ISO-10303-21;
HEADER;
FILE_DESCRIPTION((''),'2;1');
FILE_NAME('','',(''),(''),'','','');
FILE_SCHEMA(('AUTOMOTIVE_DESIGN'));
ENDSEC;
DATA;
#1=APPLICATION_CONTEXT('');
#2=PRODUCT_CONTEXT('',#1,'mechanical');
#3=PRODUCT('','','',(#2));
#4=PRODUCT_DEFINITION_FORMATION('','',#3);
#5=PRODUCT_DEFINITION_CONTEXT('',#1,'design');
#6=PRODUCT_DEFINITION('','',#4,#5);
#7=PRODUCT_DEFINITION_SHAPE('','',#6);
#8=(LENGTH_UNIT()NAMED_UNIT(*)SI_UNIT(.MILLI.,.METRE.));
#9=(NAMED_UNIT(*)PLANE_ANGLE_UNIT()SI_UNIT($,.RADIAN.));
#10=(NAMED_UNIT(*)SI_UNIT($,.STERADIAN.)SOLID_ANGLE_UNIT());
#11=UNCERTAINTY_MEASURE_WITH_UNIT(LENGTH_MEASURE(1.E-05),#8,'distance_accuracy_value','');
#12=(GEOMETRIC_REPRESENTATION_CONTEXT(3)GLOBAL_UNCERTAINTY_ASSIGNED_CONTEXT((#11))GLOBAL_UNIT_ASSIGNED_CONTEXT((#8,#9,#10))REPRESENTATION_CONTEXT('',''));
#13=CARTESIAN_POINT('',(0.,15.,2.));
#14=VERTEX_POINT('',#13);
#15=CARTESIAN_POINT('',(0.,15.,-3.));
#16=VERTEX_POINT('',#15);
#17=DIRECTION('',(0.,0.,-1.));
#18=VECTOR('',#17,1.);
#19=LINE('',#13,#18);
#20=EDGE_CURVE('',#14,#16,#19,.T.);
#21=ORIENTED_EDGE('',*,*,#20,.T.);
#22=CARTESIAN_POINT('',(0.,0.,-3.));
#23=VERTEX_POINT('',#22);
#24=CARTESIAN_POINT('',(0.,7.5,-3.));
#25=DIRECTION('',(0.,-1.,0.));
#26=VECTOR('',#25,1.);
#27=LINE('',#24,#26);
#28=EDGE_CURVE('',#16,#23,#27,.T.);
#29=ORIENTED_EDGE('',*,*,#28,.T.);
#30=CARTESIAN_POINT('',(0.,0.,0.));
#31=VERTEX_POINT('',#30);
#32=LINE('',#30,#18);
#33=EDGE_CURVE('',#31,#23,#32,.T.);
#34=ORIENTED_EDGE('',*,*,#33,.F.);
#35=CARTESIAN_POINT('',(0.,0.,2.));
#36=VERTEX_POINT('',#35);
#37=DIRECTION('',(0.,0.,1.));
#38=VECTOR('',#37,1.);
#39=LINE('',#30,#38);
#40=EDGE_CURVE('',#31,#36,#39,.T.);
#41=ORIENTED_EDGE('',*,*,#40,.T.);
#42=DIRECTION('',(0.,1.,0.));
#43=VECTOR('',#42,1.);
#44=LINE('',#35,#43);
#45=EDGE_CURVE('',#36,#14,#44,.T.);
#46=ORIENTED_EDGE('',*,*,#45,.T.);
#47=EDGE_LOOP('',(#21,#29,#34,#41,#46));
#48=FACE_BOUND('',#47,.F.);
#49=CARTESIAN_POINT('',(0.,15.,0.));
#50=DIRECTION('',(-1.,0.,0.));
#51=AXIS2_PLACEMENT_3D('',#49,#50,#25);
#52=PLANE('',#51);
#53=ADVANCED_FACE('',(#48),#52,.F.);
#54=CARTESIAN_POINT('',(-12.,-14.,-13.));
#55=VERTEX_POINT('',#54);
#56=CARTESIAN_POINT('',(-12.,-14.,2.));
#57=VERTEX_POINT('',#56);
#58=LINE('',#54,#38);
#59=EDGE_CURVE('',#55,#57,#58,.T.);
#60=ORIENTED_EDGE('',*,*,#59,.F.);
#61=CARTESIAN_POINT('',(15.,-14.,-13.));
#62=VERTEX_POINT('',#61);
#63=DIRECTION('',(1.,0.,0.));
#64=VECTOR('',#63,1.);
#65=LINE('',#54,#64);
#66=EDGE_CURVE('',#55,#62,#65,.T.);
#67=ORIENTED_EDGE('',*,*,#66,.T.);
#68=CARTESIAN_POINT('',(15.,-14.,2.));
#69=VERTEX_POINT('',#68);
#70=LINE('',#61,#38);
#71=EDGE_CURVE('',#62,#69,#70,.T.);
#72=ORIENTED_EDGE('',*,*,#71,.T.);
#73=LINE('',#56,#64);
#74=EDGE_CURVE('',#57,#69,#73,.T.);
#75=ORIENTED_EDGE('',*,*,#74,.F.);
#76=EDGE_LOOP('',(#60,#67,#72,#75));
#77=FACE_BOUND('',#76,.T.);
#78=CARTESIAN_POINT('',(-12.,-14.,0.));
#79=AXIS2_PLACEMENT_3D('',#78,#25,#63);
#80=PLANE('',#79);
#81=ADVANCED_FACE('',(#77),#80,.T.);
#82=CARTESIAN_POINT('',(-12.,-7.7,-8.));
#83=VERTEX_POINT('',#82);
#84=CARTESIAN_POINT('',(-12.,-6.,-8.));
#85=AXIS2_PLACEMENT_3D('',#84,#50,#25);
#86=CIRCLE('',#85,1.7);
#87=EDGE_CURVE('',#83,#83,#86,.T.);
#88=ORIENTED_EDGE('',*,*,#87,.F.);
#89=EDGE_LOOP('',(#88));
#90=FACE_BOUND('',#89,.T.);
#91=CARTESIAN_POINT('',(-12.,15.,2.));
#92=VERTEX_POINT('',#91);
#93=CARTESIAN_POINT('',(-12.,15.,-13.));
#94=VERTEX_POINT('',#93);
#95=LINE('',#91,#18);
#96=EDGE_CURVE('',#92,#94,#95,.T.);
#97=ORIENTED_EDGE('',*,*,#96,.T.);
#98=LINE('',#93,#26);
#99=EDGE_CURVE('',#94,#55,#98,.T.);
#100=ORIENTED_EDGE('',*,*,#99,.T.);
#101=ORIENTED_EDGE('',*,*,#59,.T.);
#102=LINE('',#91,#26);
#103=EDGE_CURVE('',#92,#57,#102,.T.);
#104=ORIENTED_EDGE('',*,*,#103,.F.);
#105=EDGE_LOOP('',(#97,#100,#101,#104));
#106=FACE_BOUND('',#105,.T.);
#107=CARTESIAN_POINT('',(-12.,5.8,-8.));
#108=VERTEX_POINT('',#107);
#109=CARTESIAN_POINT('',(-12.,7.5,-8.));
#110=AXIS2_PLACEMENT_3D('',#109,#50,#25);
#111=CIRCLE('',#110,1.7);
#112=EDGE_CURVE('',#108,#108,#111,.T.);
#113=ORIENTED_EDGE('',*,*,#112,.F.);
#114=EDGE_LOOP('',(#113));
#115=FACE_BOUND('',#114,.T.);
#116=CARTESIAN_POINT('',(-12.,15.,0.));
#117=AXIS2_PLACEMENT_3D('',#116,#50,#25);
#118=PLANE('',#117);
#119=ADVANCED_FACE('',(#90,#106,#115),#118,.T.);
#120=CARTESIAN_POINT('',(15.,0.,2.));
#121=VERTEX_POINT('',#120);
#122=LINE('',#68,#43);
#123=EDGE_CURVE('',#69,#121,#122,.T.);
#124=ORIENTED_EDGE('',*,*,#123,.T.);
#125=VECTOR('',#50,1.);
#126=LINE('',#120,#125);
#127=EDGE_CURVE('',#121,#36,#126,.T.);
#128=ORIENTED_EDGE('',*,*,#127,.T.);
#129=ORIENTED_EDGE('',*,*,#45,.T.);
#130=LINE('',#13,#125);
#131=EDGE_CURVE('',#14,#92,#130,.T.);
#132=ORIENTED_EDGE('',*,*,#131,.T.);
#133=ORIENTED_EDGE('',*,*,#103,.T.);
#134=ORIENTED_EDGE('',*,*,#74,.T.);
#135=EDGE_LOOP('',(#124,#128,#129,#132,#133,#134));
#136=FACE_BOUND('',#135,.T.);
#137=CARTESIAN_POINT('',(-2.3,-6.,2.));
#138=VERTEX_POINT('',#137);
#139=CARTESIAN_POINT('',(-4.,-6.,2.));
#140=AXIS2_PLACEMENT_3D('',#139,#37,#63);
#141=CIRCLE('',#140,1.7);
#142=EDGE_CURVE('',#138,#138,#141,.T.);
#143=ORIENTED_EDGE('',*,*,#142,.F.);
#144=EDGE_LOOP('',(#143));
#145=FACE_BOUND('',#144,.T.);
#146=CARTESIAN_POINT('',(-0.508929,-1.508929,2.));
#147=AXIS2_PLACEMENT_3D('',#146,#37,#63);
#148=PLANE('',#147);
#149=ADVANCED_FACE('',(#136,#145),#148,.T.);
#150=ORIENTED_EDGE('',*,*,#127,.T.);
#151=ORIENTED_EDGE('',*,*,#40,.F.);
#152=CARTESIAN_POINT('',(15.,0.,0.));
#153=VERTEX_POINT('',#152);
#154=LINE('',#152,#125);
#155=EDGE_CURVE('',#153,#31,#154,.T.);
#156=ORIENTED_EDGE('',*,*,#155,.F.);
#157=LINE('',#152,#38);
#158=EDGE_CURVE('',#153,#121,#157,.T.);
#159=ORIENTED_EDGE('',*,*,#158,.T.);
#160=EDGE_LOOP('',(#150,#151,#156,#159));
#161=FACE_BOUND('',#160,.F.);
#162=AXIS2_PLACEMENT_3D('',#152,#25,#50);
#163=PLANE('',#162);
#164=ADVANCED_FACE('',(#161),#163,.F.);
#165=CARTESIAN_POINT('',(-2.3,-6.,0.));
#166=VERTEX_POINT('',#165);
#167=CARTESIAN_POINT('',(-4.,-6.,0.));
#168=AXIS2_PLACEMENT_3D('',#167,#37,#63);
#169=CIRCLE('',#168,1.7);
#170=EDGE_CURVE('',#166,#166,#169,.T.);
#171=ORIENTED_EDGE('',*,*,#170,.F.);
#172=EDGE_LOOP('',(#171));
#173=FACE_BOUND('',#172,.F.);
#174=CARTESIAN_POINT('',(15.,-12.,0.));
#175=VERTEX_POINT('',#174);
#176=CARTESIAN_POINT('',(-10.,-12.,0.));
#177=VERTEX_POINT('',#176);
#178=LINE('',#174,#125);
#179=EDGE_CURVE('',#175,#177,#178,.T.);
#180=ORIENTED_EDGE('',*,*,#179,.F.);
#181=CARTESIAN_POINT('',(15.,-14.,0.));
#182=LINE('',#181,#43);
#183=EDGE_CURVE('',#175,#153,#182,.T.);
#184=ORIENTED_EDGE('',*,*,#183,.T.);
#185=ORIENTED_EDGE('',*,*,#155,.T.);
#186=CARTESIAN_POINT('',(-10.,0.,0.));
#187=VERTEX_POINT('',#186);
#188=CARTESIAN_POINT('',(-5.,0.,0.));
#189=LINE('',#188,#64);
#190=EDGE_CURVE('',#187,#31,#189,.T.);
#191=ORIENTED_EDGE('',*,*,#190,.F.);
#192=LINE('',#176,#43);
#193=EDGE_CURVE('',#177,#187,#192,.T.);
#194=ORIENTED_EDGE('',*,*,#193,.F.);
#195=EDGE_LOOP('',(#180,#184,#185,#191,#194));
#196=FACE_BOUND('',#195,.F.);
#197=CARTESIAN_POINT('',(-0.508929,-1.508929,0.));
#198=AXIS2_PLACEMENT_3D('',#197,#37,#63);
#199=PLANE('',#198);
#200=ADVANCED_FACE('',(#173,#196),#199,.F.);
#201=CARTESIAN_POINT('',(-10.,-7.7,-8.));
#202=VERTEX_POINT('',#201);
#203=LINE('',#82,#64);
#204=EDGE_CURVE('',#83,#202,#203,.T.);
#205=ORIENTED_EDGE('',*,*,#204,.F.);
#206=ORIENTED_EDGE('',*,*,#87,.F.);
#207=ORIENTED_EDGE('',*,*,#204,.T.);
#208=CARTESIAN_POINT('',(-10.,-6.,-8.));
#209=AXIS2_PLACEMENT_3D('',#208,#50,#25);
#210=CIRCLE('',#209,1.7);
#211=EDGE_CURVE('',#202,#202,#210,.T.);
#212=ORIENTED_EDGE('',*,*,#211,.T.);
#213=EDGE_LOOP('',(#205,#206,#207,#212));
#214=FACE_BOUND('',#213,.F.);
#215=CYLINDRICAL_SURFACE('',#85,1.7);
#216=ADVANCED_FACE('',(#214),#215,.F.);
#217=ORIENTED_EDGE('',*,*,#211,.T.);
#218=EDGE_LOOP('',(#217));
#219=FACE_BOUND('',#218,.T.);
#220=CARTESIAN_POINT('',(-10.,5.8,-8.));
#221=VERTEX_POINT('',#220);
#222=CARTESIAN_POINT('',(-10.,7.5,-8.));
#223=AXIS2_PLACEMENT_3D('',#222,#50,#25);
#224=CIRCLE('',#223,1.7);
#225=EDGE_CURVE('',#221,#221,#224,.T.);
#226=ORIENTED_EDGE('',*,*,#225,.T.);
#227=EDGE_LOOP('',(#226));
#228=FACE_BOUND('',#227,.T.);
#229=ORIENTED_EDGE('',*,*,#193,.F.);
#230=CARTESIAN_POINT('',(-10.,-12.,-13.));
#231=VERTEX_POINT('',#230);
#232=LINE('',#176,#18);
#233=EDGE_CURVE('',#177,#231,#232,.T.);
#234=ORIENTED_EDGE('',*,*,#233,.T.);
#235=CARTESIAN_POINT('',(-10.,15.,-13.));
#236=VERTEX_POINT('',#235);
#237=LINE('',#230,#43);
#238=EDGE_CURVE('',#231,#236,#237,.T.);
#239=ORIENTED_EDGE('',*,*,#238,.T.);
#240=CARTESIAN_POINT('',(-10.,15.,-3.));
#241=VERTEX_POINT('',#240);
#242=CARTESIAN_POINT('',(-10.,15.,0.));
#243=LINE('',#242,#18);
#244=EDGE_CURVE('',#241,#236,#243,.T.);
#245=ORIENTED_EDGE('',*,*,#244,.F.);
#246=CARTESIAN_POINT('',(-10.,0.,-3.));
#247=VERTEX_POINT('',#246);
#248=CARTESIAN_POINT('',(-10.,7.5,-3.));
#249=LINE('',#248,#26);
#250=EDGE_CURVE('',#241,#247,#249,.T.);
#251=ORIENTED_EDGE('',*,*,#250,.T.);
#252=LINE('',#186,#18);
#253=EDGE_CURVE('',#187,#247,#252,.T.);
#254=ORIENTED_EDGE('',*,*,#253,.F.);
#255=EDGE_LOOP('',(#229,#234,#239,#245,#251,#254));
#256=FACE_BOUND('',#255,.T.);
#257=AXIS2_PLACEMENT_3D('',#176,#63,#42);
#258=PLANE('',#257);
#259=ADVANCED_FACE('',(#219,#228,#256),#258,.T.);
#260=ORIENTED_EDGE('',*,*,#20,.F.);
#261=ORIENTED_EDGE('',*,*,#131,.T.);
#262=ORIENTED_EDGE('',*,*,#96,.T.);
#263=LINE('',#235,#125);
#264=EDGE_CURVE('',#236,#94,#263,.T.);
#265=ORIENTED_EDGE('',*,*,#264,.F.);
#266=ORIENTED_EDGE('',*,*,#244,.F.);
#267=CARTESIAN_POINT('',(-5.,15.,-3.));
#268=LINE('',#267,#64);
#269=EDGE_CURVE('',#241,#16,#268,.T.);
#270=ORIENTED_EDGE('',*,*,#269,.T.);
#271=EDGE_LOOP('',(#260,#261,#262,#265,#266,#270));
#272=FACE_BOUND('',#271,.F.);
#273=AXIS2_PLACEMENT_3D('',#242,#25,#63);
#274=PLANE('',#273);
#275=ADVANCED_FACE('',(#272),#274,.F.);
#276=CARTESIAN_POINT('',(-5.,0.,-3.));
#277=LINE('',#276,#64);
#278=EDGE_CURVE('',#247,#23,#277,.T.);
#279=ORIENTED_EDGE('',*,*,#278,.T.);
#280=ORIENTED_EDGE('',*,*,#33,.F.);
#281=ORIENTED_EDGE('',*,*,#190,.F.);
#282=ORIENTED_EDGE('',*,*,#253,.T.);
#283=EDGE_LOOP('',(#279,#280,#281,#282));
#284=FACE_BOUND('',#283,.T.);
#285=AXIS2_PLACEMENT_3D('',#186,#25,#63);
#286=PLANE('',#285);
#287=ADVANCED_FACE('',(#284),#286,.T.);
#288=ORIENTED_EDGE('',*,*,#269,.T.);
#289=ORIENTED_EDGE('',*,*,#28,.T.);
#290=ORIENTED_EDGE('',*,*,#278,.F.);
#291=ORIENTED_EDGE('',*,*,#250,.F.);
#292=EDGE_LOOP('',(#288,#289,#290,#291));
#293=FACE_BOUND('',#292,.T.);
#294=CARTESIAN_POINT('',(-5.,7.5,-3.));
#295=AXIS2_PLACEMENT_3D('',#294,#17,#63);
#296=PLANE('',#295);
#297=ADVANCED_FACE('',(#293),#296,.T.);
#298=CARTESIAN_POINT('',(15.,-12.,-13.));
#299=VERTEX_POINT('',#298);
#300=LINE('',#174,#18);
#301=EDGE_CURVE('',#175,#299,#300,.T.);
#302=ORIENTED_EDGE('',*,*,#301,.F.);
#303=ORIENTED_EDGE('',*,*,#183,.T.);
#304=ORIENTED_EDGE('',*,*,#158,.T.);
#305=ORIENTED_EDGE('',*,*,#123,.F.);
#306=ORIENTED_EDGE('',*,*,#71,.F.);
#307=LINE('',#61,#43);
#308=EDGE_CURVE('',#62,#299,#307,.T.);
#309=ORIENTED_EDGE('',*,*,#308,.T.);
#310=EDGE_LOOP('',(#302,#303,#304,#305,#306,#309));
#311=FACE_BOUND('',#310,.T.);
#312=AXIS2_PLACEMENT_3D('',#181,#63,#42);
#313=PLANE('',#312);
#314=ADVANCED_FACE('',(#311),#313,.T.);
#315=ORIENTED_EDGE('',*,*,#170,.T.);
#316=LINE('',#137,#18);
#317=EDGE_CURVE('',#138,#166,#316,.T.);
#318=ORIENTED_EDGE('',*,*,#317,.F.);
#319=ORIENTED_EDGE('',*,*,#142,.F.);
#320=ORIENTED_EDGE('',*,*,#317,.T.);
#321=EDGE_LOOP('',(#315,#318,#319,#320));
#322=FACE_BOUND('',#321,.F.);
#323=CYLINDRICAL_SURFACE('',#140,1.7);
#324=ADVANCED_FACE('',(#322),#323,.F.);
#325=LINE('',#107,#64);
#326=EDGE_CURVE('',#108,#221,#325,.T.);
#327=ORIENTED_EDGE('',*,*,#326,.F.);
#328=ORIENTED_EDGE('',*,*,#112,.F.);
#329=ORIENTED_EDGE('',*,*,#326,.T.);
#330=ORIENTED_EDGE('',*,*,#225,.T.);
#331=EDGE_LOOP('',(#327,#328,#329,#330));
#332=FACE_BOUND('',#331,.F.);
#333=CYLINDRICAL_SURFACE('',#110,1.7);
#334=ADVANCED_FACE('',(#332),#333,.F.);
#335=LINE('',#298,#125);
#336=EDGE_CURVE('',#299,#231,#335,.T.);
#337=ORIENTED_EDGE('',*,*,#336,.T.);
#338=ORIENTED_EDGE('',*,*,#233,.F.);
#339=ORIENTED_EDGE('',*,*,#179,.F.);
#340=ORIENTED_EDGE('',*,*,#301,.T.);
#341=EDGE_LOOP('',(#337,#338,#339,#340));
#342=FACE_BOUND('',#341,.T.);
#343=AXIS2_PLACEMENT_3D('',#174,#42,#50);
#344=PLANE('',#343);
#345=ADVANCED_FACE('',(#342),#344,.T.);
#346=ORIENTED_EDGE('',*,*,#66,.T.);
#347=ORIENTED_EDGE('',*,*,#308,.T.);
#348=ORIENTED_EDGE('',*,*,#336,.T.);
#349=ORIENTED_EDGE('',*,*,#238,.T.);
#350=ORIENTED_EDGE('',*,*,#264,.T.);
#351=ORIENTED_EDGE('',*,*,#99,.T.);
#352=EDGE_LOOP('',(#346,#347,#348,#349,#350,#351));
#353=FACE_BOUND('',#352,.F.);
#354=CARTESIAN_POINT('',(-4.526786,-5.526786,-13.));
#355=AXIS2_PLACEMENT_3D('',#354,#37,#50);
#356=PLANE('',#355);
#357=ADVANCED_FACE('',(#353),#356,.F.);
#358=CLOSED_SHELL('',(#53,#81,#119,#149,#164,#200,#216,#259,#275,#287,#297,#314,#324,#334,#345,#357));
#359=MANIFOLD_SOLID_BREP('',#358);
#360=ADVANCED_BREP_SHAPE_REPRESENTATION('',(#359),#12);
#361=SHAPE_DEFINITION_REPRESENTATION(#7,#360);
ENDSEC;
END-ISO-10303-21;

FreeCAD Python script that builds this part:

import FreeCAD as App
import Part
import Sketcher
from FreeCAD import Vector


def add_polygon(sketch, points):
    """Adds a closed chain of lines whose ends are joined by coincident constraints."""
    first, n = sketch.GeometryCount, len(points)
    for a, b in zip(points, points[1:] + points[:1]):
        sketch.addGeometry(Part.LineSegment(App.Vector(*a, 0), App.Vector(*b, 0)), False)
    for i in range(n):
        sketch.addConstraint(Sketcher.Constraint("Coincident", first + i, 2, first + (i + 1) % n, 1))

doc = App.newDocument("Part")
params = doc.addObject("Spreadsheet::Sheet", "Params")
for row, (alias, value) in enumerate([
    ("sketch1_width", "27 mm"),
    ("sketch1_width2", "15 mm"),
    ("sketch1_height", "29 mm"),
    ("pad1_length", "2 mm"),
    ("sketch2_width", "2 mm"),
    ("sketch2_width2", "25 mm"),
    ("pad2_length", "13 mm"),
    ("sketch3_width", "10 mm"),
    ("sketch3_height", "15 mm"),
    ("pad3_length", "3 mm"),
    ("sketch4_diameter", "3.4 mm"),
    ("sketch5_diameter", "3.4 mm"),
], start=1):
    params.set(f"A{row}", alias)
    params.set(f"B{row}", "=" + value)
    params.setAlias(f"B{row}", alias)

body = doc.addObject("PartDesign::Body", "Body")

# Sketch on XY plane
sketch1 = doc.addObject("Sketcher::SketchObject", "Sketch")
body.addObject(sketch1)
sketch1.AttachmentSupport = (doc.XY_Plane, [""])
sketch1.MapMode = "FlatFace"
add_polygon(sketch1, [(-12, 15), (-12, -14), (15, -14), (15, 0), (0, 0), (0, 15)])  # lines 0-5
sketch1.addConstraint(Sketcher.Constraint("Vertical", 0))
sketch1.addConstraint(Sketcher.Constraint("Horizontal", 1))
sketch1.addConstraint(Sketcher.Constraint("Vertical", 2))
sketch1.addConstraint(Sketcher.Constraint("Horizontal", 3))
sketch1.addConstraint(Sketcher.Constraint("Vertical", 4))
sketch1.addConstraint(Sketcher.Constraint("Horizontal", 5))
sketch1.addConstraint(Sketcher.Constraint("Coincident", 3, 2, -1, 1))
sketch1.addConstraint(Sketcher.Constraint("Equal", 3, 4))
sketch1.addConstraint(Sketcher.Constraint("DistanceX", 1, 1, 1, 2, 27.0))
sketch1.addConstraint(Sketcher.Constraint("DistanceX", 3, 2, 3, 1, 15.0))
sketch1.addConstraint(Sketcher.Constraint("DistanceY", 0, 2, 0, 1, 29.0))
sketch1.setExpression("Constraints[14]", "Params.sketch1_width")
sketch1.setExpression("Constraints[15]", "Params.sketch1_width2")
sketch1.setExpression("Constraints[16]", "Params.sketch1_height")
pad1 = doc.addObject("PartDesign::Pad", "Pad")
body.addObject(pad1)
pad1.Profile = sketch1
pad1.setExpression("Length", "Params.pad1_length")

# Sketch on XY plane
sketch2 = doc.addObject("Sketcher::SketchObject", "Sketch001")
body.addObject(sketch2)
sketch2.AttachmentSupport = (doc.XY_Plane, [""])
sketch2.MapMode = "FlatFace"
add_polygon(sketch2, [(-12, -14), (-12, 15), (-10, 15), (-10, -12), (15, -12), (15, -14)])  # lines 0-5
sketch2.addConstraint(Sketcher.Constraint("Vertical", 0))
sketch2.addConstraint(Sketcher.Constraint("Horizontal", 1))
sketch2.addConstraint(Sketcher.Constraint("Vertical", 2))
sketch2.addConstraint(Sketcher.Constraint("Horizontal", 3))
sketch2.addConstraint(Sketcher.Constraint("Vertical", 4))
sketch2.addConstraint(Sketcher.Constraint("Horizontal", 5))
sketch2.addConstraint(Sketcher.Constraint("Equal", 5, 2))
sketch2.addConstraint(Sketcher.Constraint("Equal", 1, 4))
sketch2.addConstraint(Sketcher.Constraint("DistanceX", 1, 1, 1, 2, 2.0))
sketch2.addConstraint(Sketcher.Constraint("DistanceX", 3, 1, 3, 2, 25.0))
sketch2.addConstraint(Sketcher.Constraint("DistanceX", 0, 2, -1, 1, 12.0))
sketch2.addConstraint(Sketcher.Constraint("DistanceY", -1, 1, 0, 2, 15.0))
sketch2.setExpression("Constraints[14]", "Params.sketch2_width")
sketch2.setExpression("Constraints[15]", "Params.sketch2_width2")
pad2 = doc.addObject("PartDesign::Pad", "Pad001")
body.addObject(pad2)
pad2.Profile = sketch2
pad2.setExpression("Length", "Params.pad2_length")
pad2.Reversed = True

# Sketch on XY plane
sketch3 = doc.addObject("Sketcher::SketchObject", "Sketch002")
body.addObject(sketch3)
sketch3.AttachmentSupport = (doc.XY_Plane, [""])
sketch3.MapMode = "FlatFace"
add_polygon(sketch3, [(-10, 0), (-10, 15), (0, 15), (0, 0)])  # lines 0-3
sketch3.addConstraint(Sketcher.Constraint("Vertical", 0))
sketch3.addConstraint(Sketcher.Constraint("Horizontal", 1))
sketch3.addConstraint(Sketcher.Constraint("Vertical", 2))
sketch3.addConstraint(Sketcher.Constraint("Horizontal", 3))
sketch3.addConstraint(Sketcher.Constraint("Coincident", 2, 2, -1, 1))
sketch3.addConstraint(Sketcher.Constraint("DistanceX", 1, 1, 1, 2, 10.0))
sketch3.addConstraint(Sketcher.Constraint("DistanceY", 0, 1, 0, 2, 15.0))
sketch3.setExpression("Constraints[9]", "Params.sketch3_width")
sketch3.setExpression("Constraints[10]", "Params.sketch3_height")
pad3 = doc.addObject("PartDesign::Pad", "Pad002")
body.addObject(pad3)
pad3.Profile = sketch3
pad3.setExpression("Length", "Params.pad3_length")
pad3.Reversed = True

# Sketch on YZ plane
sketch4 = doc.addObject("Sketcher::SketchObject", "Sketch003")
body.addObject(sketch4)
sketch4.AttachmentSupport = (doc.YZ_Plane, [""])
sketch4.MapMode = "FlatFace"
sketch4.AttachmentOffset = App.Placement(Vector(0, 0, -12), App.Rotation())
sketch4.addGeometry(Part.Circle(Vector(7.5, -8, 0), Vector(0, 0, 1), 1.7), False)
sketch4.addGeometry(Part.Circle(Vector(-6, -8, 0), Vector(0, 0, 1), 1.7), False)
sketch4.addConstraint(Sketcher.Constraint("Equal", 0, 1))
sketch4.addConstraint(Sketcher.Constraint("Horizontal", 0, 3, 1, 3))
sketch4.addConstraint(Sketcher.Constraint("Diameter", 0, 3.4))
sketch4.addConstraint(Sketcher.Constraint("DistanceY", 0, 3, -1, 1, 8.0))
sketch4.addConstraint(Sketcher.Constraint("DistanceX", 1, 3, -1, 1, 6.0))
sketch4.addConstraint(Sketcher.Constraint("DistanceX", -1, 1, 0, 3, 7.5))
sketch4.setExpression("Constraints[2]", "Params.sketch4_diameter")
pocket1 = doc.addObject("PartDesign::Pocket", "Pocket")
body.addObject(pocket1)
pocket1.Profile = sketch4
pocket1.Type = "ThroughAll"
pocket1.Reversed = True

# Sketch on XY plane
sketch5 = doc.addObject("Sketcher::SketchObject", "Sketch004")
body.addObject(sketch5)
sketch5.AttachmentSupport = (doc.XY_Plane, [""])
sketch5.MapMode = "FlatFace"
sketch5.AttachmentOffset = App.Placement(Vector(0, 0, 2), App.Rotation())
sketch5.addGeometry(Part.Circle(Vector(-4, -6, 0), Vector(0, 0, 1), 1.7), False)
sketch5.addConstraint(Sketcher.Constraint("Diameter", 0, 3.4))
sketch5.addConstraint(Sketcher.Constraint("DistanceX", 0, 3, -1, 1, 4.0))
sketch5.addConstraint(Sketcher.Constraint("DistanceY", 0, 3, -1, 1, 6.0))
sketch5.setExpression("Constraints[0]", "Params.sketch5_diameter")
pocket2 = doc.addObject("PartDesign::Pocket", "Pocket001")
body.addObject(pocket2)
pocket2.Profile = sketch5
pocket2.Type = "ThroughAll"

doc.recompute()
